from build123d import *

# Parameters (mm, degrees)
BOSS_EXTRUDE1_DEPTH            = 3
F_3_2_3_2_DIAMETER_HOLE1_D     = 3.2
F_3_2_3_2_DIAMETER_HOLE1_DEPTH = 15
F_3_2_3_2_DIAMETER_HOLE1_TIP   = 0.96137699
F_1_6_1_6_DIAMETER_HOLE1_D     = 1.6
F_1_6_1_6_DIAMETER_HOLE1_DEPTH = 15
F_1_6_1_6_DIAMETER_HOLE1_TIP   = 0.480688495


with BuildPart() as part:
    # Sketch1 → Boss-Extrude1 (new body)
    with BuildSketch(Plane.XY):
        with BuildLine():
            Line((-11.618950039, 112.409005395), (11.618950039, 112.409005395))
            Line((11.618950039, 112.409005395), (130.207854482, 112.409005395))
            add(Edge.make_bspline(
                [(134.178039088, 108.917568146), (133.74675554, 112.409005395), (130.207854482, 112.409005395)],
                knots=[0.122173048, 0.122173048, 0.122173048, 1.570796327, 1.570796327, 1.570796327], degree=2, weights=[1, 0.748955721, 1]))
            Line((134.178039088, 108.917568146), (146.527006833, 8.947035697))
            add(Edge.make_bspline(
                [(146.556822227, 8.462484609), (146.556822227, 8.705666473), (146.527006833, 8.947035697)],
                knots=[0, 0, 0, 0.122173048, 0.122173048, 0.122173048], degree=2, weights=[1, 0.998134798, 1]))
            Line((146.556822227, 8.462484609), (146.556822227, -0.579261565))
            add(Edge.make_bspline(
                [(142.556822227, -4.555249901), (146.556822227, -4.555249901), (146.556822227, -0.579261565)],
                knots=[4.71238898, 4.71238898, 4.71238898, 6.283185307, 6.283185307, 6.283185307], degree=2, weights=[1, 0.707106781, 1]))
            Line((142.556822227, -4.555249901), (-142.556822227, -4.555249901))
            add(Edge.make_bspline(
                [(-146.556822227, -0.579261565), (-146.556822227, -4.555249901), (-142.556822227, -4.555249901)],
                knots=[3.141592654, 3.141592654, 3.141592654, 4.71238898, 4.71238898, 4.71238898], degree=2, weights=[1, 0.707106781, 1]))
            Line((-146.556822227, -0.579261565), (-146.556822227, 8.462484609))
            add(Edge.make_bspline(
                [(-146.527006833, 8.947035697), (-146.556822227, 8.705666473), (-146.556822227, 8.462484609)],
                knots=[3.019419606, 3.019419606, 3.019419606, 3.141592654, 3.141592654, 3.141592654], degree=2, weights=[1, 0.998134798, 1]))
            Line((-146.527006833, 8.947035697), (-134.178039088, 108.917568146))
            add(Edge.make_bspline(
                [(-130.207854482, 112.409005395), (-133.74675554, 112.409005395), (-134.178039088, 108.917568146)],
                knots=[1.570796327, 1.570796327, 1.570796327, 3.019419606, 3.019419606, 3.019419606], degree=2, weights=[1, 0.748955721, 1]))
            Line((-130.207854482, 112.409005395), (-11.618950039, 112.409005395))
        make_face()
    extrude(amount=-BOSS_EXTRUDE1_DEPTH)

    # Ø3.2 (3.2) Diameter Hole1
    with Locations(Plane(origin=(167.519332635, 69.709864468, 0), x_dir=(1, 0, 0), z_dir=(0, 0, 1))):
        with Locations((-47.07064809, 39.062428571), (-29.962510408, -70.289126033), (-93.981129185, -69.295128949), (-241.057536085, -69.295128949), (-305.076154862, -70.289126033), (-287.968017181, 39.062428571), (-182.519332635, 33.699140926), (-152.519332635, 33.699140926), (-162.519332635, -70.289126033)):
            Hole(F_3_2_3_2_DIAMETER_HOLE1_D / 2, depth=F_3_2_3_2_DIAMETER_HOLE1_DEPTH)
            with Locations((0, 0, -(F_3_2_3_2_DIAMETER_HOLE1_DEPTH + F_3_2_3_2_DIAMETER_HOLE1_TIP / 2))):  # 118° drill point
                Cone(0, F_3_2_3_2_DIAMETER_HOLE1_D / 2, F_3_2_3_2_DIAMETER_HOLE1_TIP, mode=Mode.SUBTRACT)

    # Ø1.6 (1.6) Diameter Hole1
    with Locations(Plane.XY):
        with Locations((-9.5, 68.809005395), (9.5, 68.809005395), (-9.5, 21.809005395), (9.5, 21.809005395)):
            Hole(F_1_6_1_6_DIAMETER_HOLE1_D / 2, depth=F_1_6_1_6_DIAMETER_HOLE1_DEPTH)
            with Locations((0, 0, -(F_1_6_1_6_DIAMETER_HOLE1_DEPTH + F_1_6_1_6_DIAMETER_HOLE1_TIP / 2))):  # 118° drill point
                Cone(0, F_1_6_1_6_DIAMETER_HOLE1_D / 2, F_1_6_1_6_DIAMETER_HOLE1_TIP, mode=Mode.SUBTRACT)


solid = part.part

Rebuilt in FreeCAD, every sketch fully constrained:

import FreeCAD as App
import Part
import Sketcher

V = App.Vector

doc = App.newDocument("Part")
params = doc.addObject("Spreadsheet::Sheet", "Params")
for row, (alias, value) in enumerate([
    ("pad1_length", "3 mm"),
    ("sketch2_diameter", "3.2 mm"),
    ("hole_diameter", "3.2 mm"),
    ("hole_depth", "15 mm"),
    ("sketch3_diameter", "1.6 mm"),
    ("hole2_diameter", "1.6 mm"),
    ("hole2_depth", "15 mm"),
], start=1):
    params.set(f"A{row}", alias)
    params.set(f"B{row}", "=" + value)
    params.setAlias(f"B{row}", alias)

body = doc.addObject("PartDesign::Body", "Body")

# Sketch on XY plane
sketch1 = doc.addObject("Sketcher::SketchObject", "Sketch")
body.addObject(sketch1)
sketch1.AttachmentSupport = (doc.XY_Plane, [""])
sketch1.MapMode = "FlatFace"
sketch1.addGeometry([
    Part.BSplineCurve([V(134.178039, 108.917568, 0), V(133.746756, 112.409005, 0), V(130.207854, 112.409005, 0)], [3, 3], [0.122173048, 1.570796327], False, 2, [1, 0.748955721, 1], False),  # 0
    Part.LineSegment(V(130.207854, 112.409005, 0), V(-130.207854, 112.409005, 0)),  # 1
    Part.BSplineCurve([V(-130.207854, 112.409005, 0), V(-133.746756, 112.409005, 0), V(-134.178039, 108.917568, 0)], [3, 3], [1.570796327, 3.019419606], False, 2, [1, 0.748955721, 1], False),  # 2
    Part.LineSegment(V(-134.178039, 108.917568, 0), V(-146.527007, 8.947036, 0)),  # 3
    Part.BSplineCurve([V(-146.527007, 8.947036, 0), V(-146.556822, 8.705666, 0), V(-146.556822, 8.462485, 0)], [3, 3], [3.019419606, 3.141592654], False, 2, [1, 0.998134798, 1], False),  # 4
    Part.LineSegment(V(-146.556822, 8.462485, 0), V(-146.556822, -0.579262, 0)),  # 5
    Part.BSplineCurve([V(-146.556822, -0.579262, 0), V(-146.556822, -4.55525, 0), V(-142.556822, -4.55525, 0)], [3, 3], [3.141592654, 4.71238898], False, 2, [1, 0.707106781, 1], False),  # 6
    Part.LineSegment(V(-142.556822, -4.55525, 0), V(142.556822, -4.55525, 0)),  # 7
    Part.BSplineCurve([V(142.556822, -4.55525, 0), V(146.556822, -4.55525, 0), V(146.556822, -0.579262, 0)], [3, 3], [4.71238898, 6.283185307], False, 2, [1, 0.707106781, 1], False),  # 8
    Part.LineSegment(V(146.556822, -0.579262, 0), V(146.556822, 8.462485, 0)),  # 9
    Part.BSplineCurve([V(146.556822, 8.462485, 0), V(146.556822, 8.705666, 0), V(146.527007, 8.947036, 0)], [3, 3], [0, 0.122173048], False, 2, [1, 0.998134798, 1], False),  # 10
    Part.LineSegment(V(146.527007, 8.947036, 0), V(134.178039, 108.917568, 0)),  # 11
], False)
sketch1.addConstraint([
    Sketcher.Constraint("Block", 0),
    Sketcher.Constraint("Block", 2),
    Sketcher.Constraint("Block", 4),
    Sketcher.Constraint("Block", 6),
    Sketcher.Constraint("Block", 8),
    Sketcher.Constraint("Block", 10),
    Sketcher.Constraint("Coincident", 0, 2, 1, 1),
    Sketcher.Constraint("Coincident", 1, 2, 2, 1),
    Sketcher.Constraint("Coincident", 2, 2, 3, 1),
    Sketcher.Constraint("Coincident", 3, 2, 4, 1),
    Sketcher.Constraint("Coincident", 4, 2, 5, 1),
    Sketcher.Constraint("Coincident", 5, 2, 6, 1),
    Sketcher.Constraint("Coincident", 6, 2, 7, 1),
    Sketcher.Constraint("Coincident", 7, 2, 8, 1),
    Sketcher.Constraint("Coincident", 8, 2, 9, 1),
    Sketcher.Constraint("Coincident", 9, 2, 10, 1),
    Sketcher.Constraint("Coincident", 10, 2, 11, 1),
    Sketcher.Constraint("Coincident", 11, 2, 0, 1),
])
pad1 = doc.addObject("PartDesign::Pad", "Pad")
body.addObject(pad1)
pad1.Profile = sketch1
pad1.setExpression("Length", "Params.pad1_length")
pad1.Reversed = True

# Sketch on XY plane
sketch2 = doc.addObject("Sketcher::SketchObject", "Sketch001")
body.addObject(sketch2)
sketch2.AttachmentSupport = (doc.XY_Plane, [""])
sketch2.MapMode = "FlatFace"
sketch2.addGeometry([
    Part.Circle(V(120.4, 108.8, 0), V(0, 0, 1), 1.6),  # 0
    Part.Circle(V(137.6, -0.6, 0), V(0, 0, 1), 1.6),  # 1
    Part.Circle(V(73.5, 0.4, 0), V(0, 0, 1), 1.6),  # 2
    Part.Circle(V(-73.5, 0.4, 0), V(0, 0, 1), 1.6),  # 3
    Part.Circle(V(-137.6, -0.6, 0), V(0, 0, 1), 1.6),  # 4
    Part.Circle(V(-120.4, 108.8, 0), V(0, 0, 1), 1.6),  # 5
    Part.Circle(V(-15, 103.4, 0), V(0, 0, 1), 1.6),  # 6
    Part.Circle(V(15, 103.4, 0), V(0, 0, 1), 1.6),  # 7
    Part.Circle(V(5, -0.6, 0), V(0, 0, 1), 1.6),  # 8
], False)
sketch2.addConstraint([
    Sketcher.Constraint("Equal", 0, 1),
    Sketcher.Constraint("Equal", 1, 2),
    Sketcher.Constraint("Equal", 2, 3),
    Sketcher.Constraint("Equal", 3, 4),
    Sketcher.Constraint("Equal", 4, 5),
    Sketcher.Constraint("Equal", 5, 6),
    Sketcher.Constraint("Equal", 6, 7),
    Sketcher.Constraint("Equal", 7, 8),
    Sketcher.Constraint("Symmetric", 2, 3, 3, 3, -2),
    Sketcher.Constraint("Symmetric", 1, 3, 4, 3, -2),
    Sketcher.Constraint("Symmetric", 0, 3, 5, 3, -2),
    Sketcher.Constraint("Symmetric", 6, 3, 7, 3, -2),
    Sketcher.Constraint("Horizontal", 4, 3, 8, 3),
    Sketcher.Constraint("Diameter", 0, 3.2),
    Sketcher.Constraint("DistanceX", 6, 3, -1, 1, 15.0),
    Sketcher.Constraint("DistanceX", -1, 1, 8, 3, 5.0),
    Sketcher.Constraint("DistanceY", 1, 3, -1, 1, 0.579262),
    Sketcher.Constraint("DistanceX", 2, 3, 1, 3, 64.018619),
    Sketcher.Constraint("DistanceX", 2, 3, 0, 3, 46.910481),
    Sketcher.Constraint("DistanceX", 5, 3, 0, 3, 240.897369),
    Sketcher.Constraint("DistanceY", 3, 3, 6, 3, 102.99427),
    Sketcher.Constraint("DistanceY", -1, 1, 0, 3, 108.772293),
    Sketcher.Constraint("DistanceY", -1, 1, 2, 3, 0.414736),
])
sketch2.setExpression("Constraints[13]", "Params.sketch2_diameter")
doc.recompute()
hole = doc.addObject("PartDesign::Hole", "Hole")
body.addObject(hole)
hole.Profile = sketch2
hole.ThreadType = "None"
hole.setExpression("Diameter", "Params.hole_diameter")
hole.DepthType = "Dimension"
hole.setExpression("Depth", "Params.hole_depth")
hole.DrillPoint = "Angled"
hole.DrillPointAngle = 118

# Sketch on XY plane
sketch3 = doc.addObject("Sketcher::SketchObject", "Sketch002")
body.addObject(sketch3)
sketch3.AttachmentSupport = (doc.XY_Plane, [""])
sketch3.MapMode = "FlatFace"
sketch3.addGeometry([
    Part.Circle(V(-9.5, 68.8, 0), V(0, 0, 1), 0.8),
    Part.Circle(V(9.5, 68.8, 0), V(0, 0, 1), 0.8),
    Part.Circle(V(-9.5, 21.8, 0), V(0, 0, 1), 0.8),
    Part.Circle(V(9.5, 21.8, 0), V(0, 0, 1), 0.8),
], False)
sketch3.addConstraint([
    Sketcher.Constraint("Equal", 0, 1),
    Sketcher.Constraint("Equal", 1, 2),
    Sketcher.Constraint("Equal", 2, 3),
    Sketcher.Constraint("Symmetric", 0, 3, 1, 3, -2),
    Sketcher.Constraint("Symmetric", 2, 3, 3, 3, -2),
    Sketcher.Constraint("Vertical", 0, 3, 2, 3),
    Sketcher.Constraint("Diameter", 0, 1.6),
    Sketcher.Constraint("DistanceX", 0, 3, 1, 3, 19.0),
    Sketcher.Constraint("DistanceY", 2, 3, 0, 3, 47.0),
    Sketcher.Constraint("DistanceY", -1, 1, 0, 3, 68.809005),
])
sketch3.setExpression("Constraints[6]", "Params.sketch3_diameter")
doc.recompute()
hole2 = doc.addObject("PartDesign::Hole", "Hole001")
body.addObject(hole2)
hole2.Profile = sketch3
hole2.ThreadType = "None"
hole2.setExpression("Diameter", "Params.hole2_diameter")
hole2.DepthType = "Dimension"
hole2.setExpression("Depth", "Params.hole2_depth")
hole2.DrillPoint = "Angled"
hole2.DrillPointAngle = 118

doc.recompute()
